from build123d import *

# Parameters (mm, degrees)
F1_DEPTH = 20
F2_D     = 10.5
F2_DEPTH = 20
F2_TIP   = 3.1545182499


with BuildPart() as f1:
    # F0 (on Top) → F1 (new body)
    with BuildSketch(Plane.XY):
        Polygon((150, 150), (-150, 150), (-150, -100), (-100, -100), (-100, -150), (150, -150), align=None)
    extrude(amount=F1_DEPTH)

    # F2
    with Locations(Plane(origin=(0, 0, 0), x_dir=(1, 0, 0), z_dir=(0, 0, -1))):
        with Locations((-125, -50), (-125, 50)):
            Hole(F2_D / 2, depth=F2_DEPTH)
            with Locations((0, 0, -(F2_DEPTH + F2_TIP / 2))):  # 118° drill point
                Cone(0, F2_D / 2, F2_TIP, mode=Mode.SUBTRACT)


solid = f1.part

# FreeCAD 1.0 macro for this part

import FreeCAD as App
import Part
import Sketcher

V = App.Vector
Q = App.Units.Quantity

doc = App.newDocument("Part")
body = doc.addObject("PartDesign::Body", "Body")

sketch1 = body.newObject("Sketcher::SketchObject", "Sketch")
sketch1.AttachmentSupport = (doc.getObject("XY_Plane"), [""])
sketch1.MapMode = "FlatFace"
sketch1.addGeometry(Part.LineSegment(V(150, 150, 0), V(-150, 150, 0)), False)
sketch1.addGeometry(Part.LineSegment(V(-150, 150, 0), V(-150, -100, 0)), False)
sketch1.addGeometry(Part.LineSegment(V(-150, -100, 0), V(-100, -100, 0)), False)
sketch1.addGeometry(Part.LineSegment(V(-100, -100, 0), V(-100, -150, 0)), False)
sketch1.addGeometry(Part.LineSegment(V(-100, -150, 0), V(150, -150, 0)), False)
sketch1.addGeometry(Part.LineSegment(V(150, -150, 0), V(150, 150, 0)), False)
sketch1.addConstraint(Sketcher.Constraint("Coincident", 0, 2, 1, 1))
sketch1.addConstraint(Sketcher.Constraint("Coincident", 1, 2, 2, 1))
sketch1.addConstraint(Sketcher.Constraint("Coincident", 2, 2, 3, 1))
sketch1.addConstraint(Sketcher.Constraint("Coincident", 3, 2, 4, 1))
sketch1.addConstraint(Sketcher.Constraint("Coincident", 4, 2, 5, 1))
sketch1.addConstraint(Sketcher.Constraint("Coincident", 5, 2, 0, 1))
sketch1.addConstraint(Sketcher.Constraint("Horizontal", 0))
sketch1.addConstraint(Sketcher.Constraint("Vertical", 1))
sketch1.addConstraint(Sketcher.Constraint("Horizontal", 2))
sketch1.addConstraint(Sketcher.Constraint("Vertical", 3))
sketch1.addConstraint(Sketcher.Constraint("Horizontal", 4))
sketch1.addConstraint(Sketcher.Constraint("Vertical", 5))
sketch1.addConstraint(Sketcher.Constraint("Symmetric", 0, 2, 4, 2, -1, 1))
sketch1.addConstraint(Sketcher.Constraint("Equal", 4, 1))
sketch1.addConstraint(Sketcher.Constraint("Equal", 2, 3))
sketch1.addConstraint(Sketcher.Constraint("DistanceX", 0, 2, 0, 1, Q("300 mm")))
sketch1.addConstraint(Sketcher.Constraint("DistanceX", 2, 1, 2, 2, Q("50 mm")))
pad1 = body.newObject("PartDesign::Pad", "Pad")
pad1.Profile = sketch1
pad1.Length = 20

sketch2 = body.newObject("Sketcher::SketchObject", "Sketch001")
sketch2.AttachmentSupport = (doc.getObject("XY_Plane"), [""])
sketch2.MapMode = "FlatFace"
sketch2.addGeometry(Part.Circle(V(-125, 50, 0), V(0, 0, 1), 5.25), False)
sketch2.addGeometry(Part.Circle(V(-125, -50, 0), V(0, 0, 1), 5.25), False)
sketch2.addConstraint(Sketcher.Constraint("Equal", 0, 1))
sketch2.addConstraint(Sketcher.Constraint("Symmetric", 0, 3, 1, 3, -1))
sketch2.addConstraint(Sketcher.Constraint("Diameter", 0, Q("10.5 mm")))
sketch2.addConstraint(Sketcher.Constraint("DistanceX", 0, 3, -1, 1, Q("125 mm")))
sketch2.addConstraint(Sketcher.Constraint("DistanceY", -1, 1, 0, 3, Q("50 mm")))
doc.recompute()
hole = body.newObject("PartDesign::Hole", "Hole")
hole.Profile = sketch2
hole.ThreadType = "None"
hole.Diameter = 10.5
hole.DepthType = "Dimension"
hole.Depth = 20
hole.DrillPoint = "Angled"
hole.DrillPointAngle = 118
hole.Reversed = True

doc.recompute()
